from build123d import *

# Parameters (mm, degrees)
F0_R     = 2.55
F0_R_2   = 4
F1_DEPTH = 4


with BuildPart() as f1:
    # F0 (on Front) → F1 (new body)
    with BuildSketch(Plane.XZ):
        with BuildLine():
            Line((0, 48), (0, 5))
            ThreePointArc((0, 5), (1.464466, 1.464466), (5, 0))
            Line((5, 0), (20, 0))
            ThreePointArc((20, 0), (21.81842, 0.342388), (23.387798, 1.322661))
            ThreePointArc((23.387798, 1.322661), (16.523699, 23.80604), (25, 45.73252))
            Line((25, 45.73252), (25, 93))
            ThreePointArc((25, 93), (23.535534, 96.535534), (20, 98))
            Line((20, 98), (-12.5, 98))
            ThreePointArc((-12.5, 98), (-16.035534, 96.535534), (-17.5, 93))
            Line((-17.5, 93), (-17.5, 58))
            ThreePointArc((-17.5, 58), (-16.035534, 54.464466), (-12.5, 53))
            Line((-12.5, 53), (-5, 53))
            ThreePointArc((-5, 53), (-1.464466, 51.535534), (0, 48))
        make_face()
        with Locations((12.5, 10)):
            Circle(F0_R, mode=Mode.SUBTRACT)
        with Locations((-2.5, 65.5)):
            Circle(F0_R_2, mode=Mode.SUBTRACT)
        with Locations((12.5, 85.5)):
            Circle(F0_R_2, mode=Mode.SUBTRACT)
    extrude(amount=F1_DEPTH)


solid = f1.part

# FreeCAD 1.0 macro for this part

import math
import FreeCAD as App
import Part
import Sketcher
Q = App.Units.Quantity

doc = App.newDocument("Part")
params = doc.addObject("Spreadsheet::Sheet", "Params")
for row, (alias, value) in enumerate([
    ("sketch1_diameter", "8 mm"),
    ("sketch1_radius", "5 mm"),
    ("sketch1_radius2", "36.000001 mm"),
    ("sketch1_diameter2", "5.1 mm"),
    ("sketch1_width", "15 mm"),
    ("pad1_length", "4 mm"),
], start=1):
    params.set(f"A{row}", alias)
    params.set(f"B{row}", "=" + value)
    params.setAlias(f"B{row}", alias)

body = doc.addObject("PartDesign::Body", "Body")

# Sketch on XZ plane
sketch1 = body.newObject("Sketcher::SketchObject", "Sketch")
sketch1.AttachmentSupport = (doc.getObject("XZ_Plane"), [""])
sketch1.MapMode = "FlatFace"
sketch1.addGeometry(Part.LineSegment(App.Vector(0, 48, 0), App.Vector(0, 5, 0)), False)
sketch1.addGeometry(Part.ArcOfCircle(Part.Circle(App.Vector(5, 5, 0), App.Vector(0, 0, 1), 5), math.radians(179.999996), math.radians(270.000004)), False)
sketch1.addGeometry(Part.LineSegment(App.Vector(5, 0, 0), App.Vector(20, 0, 0)), False)
sketch1.addGeometry(Part.ArcOfCircle(Part.Circle(App.Vector(20.000001, 4.999997, 0), App.Vector(0, 0, 1), 4.999997), math.radians(-90.000009), math.radians(-47.346746)), False)
sketch1.addGeometry(Part.ArcOfCircle(Part.Circle(App.Vector(52.500001, 22.5, 0), App.Vector(0, 0, 1), 36.000001), math.radians(139.808245), math.radians(216.033587)), False)
sketch1.addGeometry(Part.LineSegment(App.Vector(25, 45.73252, 0), App.Vector(25, 93, 0)), False)
sketch1.addGeometry(Part.ArcOfCircle(Part.Circle(App.Vector(20, 93, 0), App.Vector(0, 0, 1), 5), math.radians(-0.000004), math.radians(90.000004)), False)
sketch1.addGeometry(Part.LineSegment(App.Vector(20, 98, 0), App.Vector(-12.5, 98, 0)), False)
sketch1.addGeometry(Part.ArcOfCircle(Part.Circle(App.Vector(-12.5, 93, 0), App.Vector(0, 0, 1), 5), math.radians(89.999996), math.radians(180.000004)), False)
sketch1.addGeometry(Part.LineSegment(App.Vector(-17.5, 93, 0), App.Vector(-17.5, 58, 0)), False)
sketch1.addGeometry(Part.ArcOfCircle(Part.Circle(App.Vector(-12.5, 58, 0), App.Vector(0, 0, 1), 5), math.radians(179.999996), math.radians(270.000004)), False)
sketch1.addGeometry(Part.LineSegment(App.Vector(-12.5, 53, 0), App.Vector(-5, 53, 0)), False)
sketch1.addGeometry(Part.ArcOfCircle(Part.Circle(App.Vector(-5, 48, 0), App.Vector(0, 0, 1), 5), math.radians(-0.000004), math.radians(90.000004)), False)
sketch1.addGeometry(Part.Circle(App.Vector(12.5, 10, 0), App.Vector(0, 0, 1), 2.55), False)
sketch1.addGeometry(Part.Circle(App.Vector(-2.5, 65.5, 0), App.Vector(0, 0, 1), 4), False)
sketch1.addGeometry(Part.Circle(App.Vector(12.5, 85.5, 0), App.Vector(0, 0, 1), 4), False)
sketch1.addConstraint(Sketcher.Constraint("Tangent", 0, 2, 1, 1))
sketch1.addConstraint(Sketcher.Constraint("Tangent", 1, 2, 2, 1))
sketch1.addConstraint(Sketcher.Constraint("Tangent", 2, 2, 3, 1))
sketch1.addConstraint(Sketcher.Constraint("Coincident", 3, 2, 4, 2))
sketch1.addConstraint(Sketcher.Constraint("Coincident", 4, 1, 5, 1))
sketch1.addConstraint(Sketcher.Constraint("Tangent", 5, 2, 6, 1))
sketch1.addConstraint(Sketcher.Constraint("Tangent", 6, 2, 7, 1))
sketch1.addConstraint(Sketcher.Constraint("Tangent", 7, 2, 8, 1))
sketch1.addConstraint(Sketcher.Constraint("Tangent", 8, 2, 9, 1))
sketch1.addConstraint(Sketcher.Constraint("Tangent", 9, 2, 10, 1))
sketch1.addConstraint(Sketcher.Constraint("Tangent", 10, 2, 11, 1))
sketch1.addConstraint(Sketcher.Constraint("Tangent", 11, 2, 12, 2))
sketch1.addConstraint(Sketcher.Constraint("Tangent", 12, 1, 0, 1))
sketch1.addConstraint(Sketcher.Constraint("Vertical", 0))
sketch1.addConstraint(Sketcher.Constraint("Horizontal", 2))
sketch1.addConstraint(Sketcher.Constraint("Vertical", 5))
sketch1.addConstraint(Sketcher.Constraint("Horizontal", 7))
sketch1.addConstraint(Sketcher.Constraint("Vertical", 9))
sketch1.addConstraint(Sketcher.Constraint("Horizontal", 11))
sketch1.addConstraint(Sketcher.Constraint("Equal", 1, 6))
sketch1.addConstraint(Sketcher.Constraint("Equal", 6, 8))
sketch1.addConstraint(Sketcher.Constraint("Equal", 8, 10))
sketch1.addConstraint(Sketcher.Constraint("Equal", 10, 12))
sketch1.addConstraint(Sketcher.Constraint("Equal", 14, 15))
sketch1.addConstraint(Sketcher.Constraint("PointOnObject", 0, 2, -2))
sketch1.addConstraint(Sketcher.Constraint("PointOnObject", 1, 2, -1))
sketch1.addConstraint(Sketcher.Constraint("Vertical", 3, 3, 6, 3))
sketch1.addConstraint(Sketcher.Constraint("Vertical", 13, 3, 15, 3))
sketch1.addConstraint(Sketcher.Constraint("Diameter", 14, Q("8 mm")))
sketch1.addConstraint(Sketcher.Constraint("Radius", 1, Q("5 mm")))
sketch1.addConstraint(Sketcher.Constraint("Radius", 4, Q("36.000001 mm")))
sketch1.addConstraint(Sketcher.Constraint("Diameter", 13, Q("5.1 mm")))
sketch1.addConstraint(Sketcher.Constraint("DistanceX", 2, 1, 2, 2, Q("15 mm")))
sketch1.addConstraint(Sketcher.Constraint("DistanceY", 0, 2, 0, 1, Q("43 mm")))
sketch1.addConstraint(Sketcher.Constraint("DistanceY", 9, 2, 9, 1, Q("35 mm")))
sketch1.addConstraint(Sketcher.Constraint("DistanceX", 7, 2, 7, 1, Q("32.5 mm")))
sketch1.addConstraint(Sketcher.Constraint("DistanceY", -1, 1, 13, 3, Q("10 mm")))
sketch1.addConstraint(Sketcher.Constraint("DistanceX", 8, 3, 4, 3, Q("65.000001 mm")))
sketch1.addConstraint(Sketcher.Constraint("DistanceX", 13, 3, 4, 3, Q("40.000001 mm")))
sketch1.addConstraint(Sketcher.Constraint("DistanceX", 10, 3, 14, 3, Q("10 mm")))
sketch1.addConstraint(Sketcher.Constraint("DistanceY", 14, 3, 15, 3, Q("20 mm")))
sketch1.addConstraint(Sketcher.Constraint("DistanceY", -1, 1, 4, 3, Q("22.5 mm")))
sketch1.addConstraint(Sketcher.Constraint("DistanceY", -1, 1, 14, 3, Q("65.5 mm")))
sketch1.addConstraint(Sketcher.Constraint("Radius", 3, Q("4.999997 mm")))
sketch1.setExpression("Constraints[28]", "Params.sketch1_diameter")
sketch1.setExpression("Constraints[29]", "Params.sketch1_radius")
sketch1.setExpression("Constraints[30]", "Params.sketch1_radius2")
sketch1.setExpression("Constraints[31]", "Params.sketch1_diameter2")
sketch1.setExpression("Constraints[32]", "Params.sketch1_width")
pad1 = body.newObject("PartDesign::Pad", "Pad")
pad1.Profile = sketch1
pad1.setExpression("Length", "Params.pad1_length")

doc.recompute()
